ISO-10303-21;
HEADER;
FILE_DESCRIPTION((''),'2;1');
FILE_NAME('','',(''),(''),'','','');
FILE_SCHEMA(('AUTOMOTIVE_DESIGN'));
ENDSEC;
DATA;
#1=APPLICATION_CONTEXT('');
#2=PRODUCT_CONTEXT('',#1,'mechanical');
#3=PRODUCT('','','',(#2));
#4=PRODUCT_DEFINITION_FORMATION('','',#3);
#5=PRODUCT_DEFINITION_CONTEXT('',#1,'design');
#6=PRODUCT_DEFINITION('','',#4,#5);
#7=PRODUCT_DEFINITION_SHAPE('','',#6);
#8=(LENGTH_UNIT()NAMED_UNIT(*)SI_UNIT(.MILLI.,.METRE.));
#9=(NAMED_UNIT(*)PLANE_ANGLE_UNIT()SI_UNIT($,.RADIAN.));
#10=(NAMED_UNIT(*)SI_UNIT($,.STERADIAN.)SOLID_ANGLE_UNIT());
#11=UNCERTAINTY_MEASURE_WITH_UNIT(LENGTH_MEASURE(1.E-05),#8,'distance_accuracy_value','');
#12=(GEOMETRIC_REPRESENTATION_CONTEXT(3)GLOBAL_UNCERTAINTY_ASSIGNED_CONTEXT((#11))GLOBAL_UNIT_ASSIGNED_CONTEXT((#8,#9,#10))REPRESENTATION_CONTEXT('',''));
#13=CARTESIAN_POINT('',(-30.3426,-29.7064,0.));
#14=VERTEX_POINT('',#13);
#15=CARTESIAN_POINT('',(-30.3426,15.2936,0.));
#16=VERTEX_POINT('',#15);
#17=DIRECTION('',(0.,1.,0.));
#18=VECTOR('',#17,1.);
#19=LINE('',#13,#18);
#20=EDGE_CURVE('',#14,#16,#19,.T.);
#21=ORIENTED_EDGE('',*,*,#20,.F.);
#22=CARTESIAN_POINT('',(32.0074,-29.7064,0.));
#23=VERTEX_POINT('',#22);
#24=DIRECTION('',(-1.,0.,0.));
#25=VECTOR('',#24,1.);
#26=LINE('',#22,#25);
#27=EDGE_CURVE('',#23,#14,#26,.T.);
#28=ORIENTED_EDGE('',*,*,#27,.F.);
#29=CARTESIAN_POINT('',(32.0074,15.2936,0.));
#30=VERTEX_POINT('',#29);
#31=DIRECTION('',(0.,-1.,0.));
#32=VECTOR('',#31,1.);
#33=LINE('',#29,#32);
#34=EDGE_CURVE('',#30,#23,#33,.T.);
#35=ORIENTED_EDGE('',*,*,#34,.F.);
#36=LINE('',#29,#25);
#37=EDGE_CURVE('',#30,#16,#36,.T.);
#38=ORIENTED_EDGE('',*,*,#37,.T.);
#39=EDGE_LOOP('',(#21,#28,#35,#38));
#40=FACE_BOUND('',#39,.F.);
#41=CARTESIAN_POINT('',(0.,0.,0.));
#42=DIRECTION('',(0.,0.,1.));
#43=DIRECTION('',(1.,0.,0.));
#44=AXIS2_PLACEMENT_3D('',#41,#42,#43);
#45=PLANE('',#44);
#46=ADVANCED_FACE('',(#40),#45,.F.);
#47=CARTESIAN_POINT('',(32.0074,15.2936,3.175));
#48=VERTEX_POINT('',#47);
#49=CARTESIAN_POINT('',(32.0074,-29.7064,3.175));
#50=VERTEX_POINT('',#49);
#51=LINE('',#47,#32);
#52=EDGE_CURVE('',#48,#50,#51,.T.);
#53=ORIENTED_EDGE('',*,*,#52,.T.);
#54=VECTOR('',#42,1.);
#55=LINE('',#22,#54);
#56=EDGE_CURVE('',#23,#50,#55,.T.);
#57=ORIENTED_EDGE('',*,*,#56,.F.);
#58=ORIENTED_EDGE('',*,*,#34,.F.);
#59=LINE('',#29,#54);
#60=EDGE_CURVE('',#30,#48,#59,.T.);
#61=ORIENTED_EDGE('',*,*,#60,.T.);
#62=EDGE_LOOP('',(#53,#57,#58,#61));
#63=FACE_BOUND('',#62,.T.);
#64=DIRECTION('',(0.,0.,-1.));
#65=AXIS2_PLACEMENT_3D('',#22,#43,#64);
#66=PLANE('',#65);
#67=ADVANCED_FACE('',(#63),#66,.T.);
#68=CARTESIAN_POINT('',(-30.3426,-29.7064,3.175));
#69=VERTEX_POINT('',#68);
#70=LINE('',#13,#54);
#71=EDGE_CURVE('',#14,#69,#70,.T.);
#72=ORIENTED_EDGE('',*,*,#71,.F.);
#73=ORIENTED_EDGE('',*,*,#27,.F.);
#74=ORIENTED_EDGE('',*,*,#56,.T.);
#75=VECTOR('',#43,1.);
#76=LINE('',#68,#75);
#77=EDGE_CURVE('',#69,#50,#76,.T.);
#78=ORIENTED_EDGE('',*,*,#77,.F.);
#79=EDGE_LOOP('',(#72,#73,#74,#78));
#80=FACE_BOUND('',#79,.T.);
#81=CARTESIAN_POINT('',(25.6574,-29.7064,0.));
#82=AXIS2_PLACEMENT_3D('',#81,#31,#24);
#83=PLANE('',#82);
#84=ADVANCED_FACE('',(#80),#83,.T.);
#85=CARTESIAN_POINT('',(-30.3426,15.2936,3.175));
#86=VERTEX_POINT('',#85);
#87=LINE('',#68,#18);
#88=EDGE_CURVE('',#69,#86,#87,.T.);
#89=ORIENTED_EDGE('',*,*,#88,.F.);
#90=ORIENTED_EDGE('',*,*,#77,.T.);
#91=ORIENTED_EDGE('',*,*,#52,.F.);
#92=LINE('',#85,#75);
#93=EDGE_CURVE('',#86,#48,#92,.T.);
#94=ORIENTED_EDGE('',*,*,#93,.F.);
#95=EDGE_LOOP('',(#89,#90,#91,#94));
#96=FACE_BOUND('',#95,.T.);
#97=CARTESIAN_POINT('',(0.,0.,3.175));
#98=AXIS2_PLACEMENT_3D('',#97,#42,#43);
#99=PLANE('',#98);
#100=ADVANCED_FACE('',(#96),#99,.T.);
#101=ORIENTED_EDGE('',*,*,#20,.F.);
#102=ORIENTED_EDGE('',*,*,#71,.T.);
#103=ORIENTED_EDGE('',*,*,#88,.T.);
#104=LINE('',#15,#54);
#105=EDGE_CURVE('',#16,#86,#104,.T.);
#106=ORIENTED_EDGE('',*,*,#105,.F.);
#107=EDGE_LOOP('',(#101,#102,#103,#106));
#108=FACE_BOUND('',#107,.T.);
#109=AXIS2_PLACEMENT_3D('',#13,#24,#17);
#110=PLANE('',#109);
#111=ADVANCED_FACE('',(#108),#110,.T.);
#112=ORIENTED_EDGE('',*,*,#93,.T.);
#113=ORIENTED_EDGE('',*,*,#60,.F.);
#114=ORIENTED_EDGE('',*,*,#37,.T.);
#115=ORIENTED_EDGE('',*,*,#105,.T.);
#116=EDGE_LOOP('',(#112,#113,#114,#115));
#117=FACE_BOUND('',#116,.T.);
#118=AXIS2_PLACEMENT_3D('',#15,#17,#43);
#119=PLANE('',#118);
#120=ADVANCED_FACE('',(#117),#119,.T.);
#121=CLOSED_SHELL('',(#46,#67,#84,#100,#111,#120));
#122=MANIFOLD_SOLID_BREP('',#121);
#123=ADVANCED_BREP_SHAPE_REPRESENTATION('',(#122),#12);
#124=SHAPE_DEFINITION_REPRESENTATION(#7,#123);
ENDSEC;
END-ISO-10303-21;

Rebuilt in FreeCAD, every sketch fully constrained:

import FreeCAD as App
import Part
import Sketcher
from FreeCAD import Vector
Q = App.Units.Quantity

doc = App.newDocument("Part")
params = doc.addObject("Spreadsheet::Sheet", "Params")
for row, (alias, value) in enumerate([
    ("sketch1_width", "56 mm"),
    ("sketch1_height", "45 mm"),
    ("pad1_length", "3.175 mm"),
    ("sketch2_width", "45 mm"),
    ("pad2_length", "6.35 mm"),
], start=1):
    params.set(f"A{row}", alias)
    params.set(f"B{row}", "=" + value)
    params.setAlias(f"B{row}", alias)

body = doc.addObject("PartDesign::Body", "Body")

# Sketch on XY plane
sketch1 = doc.addObject("Sketcher::SketchObject", "Sketch")
body.addObject(sketch1)
sketch1.AttachmentSupport = (doc.XY_Plane, [""])
sketch1.MapMode = "FlatFace"
sketch1.addGeometry(Part.LineSegment(Vector(25.6574, 15.2936, 0), Vector(-30.3426, 15.2936, 0)), False)
sketch1.addGeometry(Part.LineSegment(Vector(-30.3426, 15.2936, 0), Vector(-30.3426, -29.7064, 0)), False)
sketch1.addGeometry(Part.LineSegment(Vector(-30.3426, -29.7064, 0), Vector(25.6574, -29.7064, 0)), False)
sketch1.addGeometry(Part.LineSegment(Vector(25.6574, -29.7064, 0), Vector(25.6574, 15.2936, 0)), False)
sketch1.addConstraint(Sketcher.Constraint("Coincident", 0, 2, 1, 1))
sketch1.addConstraint(Sketcher.Constraint("Coincident", 1, 2, 2, 1))
sketch1.addConstraint(Sketcher.Constraint("Coincident", 2, 2, 3, 1))
sketch1.addConstraint(Sketcher.Constraint("Coincident", 3, 2, 0, 1))
sketch1.addConstraint(Sketcher.Constraint("Horizontal", 0))
sketch1.addConstraint(Sketcher.Constraint("Vertical", 1))
sketch1.addConstraint(Sketcher.Constraint("Horizontal", 2))
sketch1.addConstraint(Sketcher.Constraint("Vertical", 3))
sketch1.addConstraint(Sketcher.Constraint("DistanceX", 0, 2, 0, 1, Q("56 mm")))
sketch1.addConstraint(Sketcher.Constraint("DistanceY", 1, 2, 1, 1, Q("45 mm")))
sketch1.addConstraint(Sketcher.Constraint("DistanceX", 0, 2, -1, 1, Q("30.3426 mm")))
sketch1.addConstraint(Sketcher.Constraint("DistanceY", -1, 1, 0, 2, Q("15.2936 mm")))
sketch1.setExpression("Constraints[8]", "Params.sketch1_width")
sketch1.setExpression("Constraints[9]", "Params.sketch1_height")
pad1 = doc.addObject("PartDesign::Pad", "Pad")
body.addObject(pad1)
pad1.Profile = sketch1
pad1.setExpression("Length", "Params.pad1_length")

# Sketch on YZ plane
sketch2 = doc.addObject("Sketcher::SketchObject", "Sketch001")
body.addObject(sketch2)
sketch2.AttachmentSupport = (doc.YZ_Plane, [""])
sketch2.MapMode = "FlatFace"
sketch2.AttachmentOffset = App.Placement(Vector(0, 0, 25.6574), App.Rotation())
sketch2.addGeometry(Part.LineSegment(Vector(15.2936, 0, 0), Vector(15.2936, 3.175, 0)), False)
sketch2.addGeometry(Part.LineSegment(Vector(15.2936, 3.175, 0), Vector(-29.7064, 3.175, 0)), False)
sketch2.addGeometry(Part.LineSegment(Vector(-29.7064, 3.175, 0), Vector(-29.7064, 0, 0)), False)
sketch2.addGeometry(Part.LineSegment(Vector(-29.7064, 0, 0), Vector(15.2936, 0, 0)), False)
sketch2.addConstraint(Sketcher.Constraint("Coincident", 0, 2, 1, 1))
sketch2.addConstraint(Sketcher.Constraint("Coincident", 1, 2, 2, 1))
sketch2.addConstraint(Sketcher.Constraint("Coincident", 2, 2, 3, 1))
sketch2.addConstraint(Sketcher.Constraint("Coincident", 3, 2, 0, 1))
sketch2.addConstraint(Sketcher.Constraint("Vertical", 0))
sketch2.addConstraint(Sketcher.Constraint("Horizontal", 1))
sketch2.addConstraint(Sketcher.Constraint("Vertical", 2))
sketch2.addConstraint(Sketcher.Constraint("Horizontal", 3))
sketch2.addConstraint(Sketcher.Constraint("PointOnObject", 2, 2, -1))
sketch2.addConstraint(Sketcher.Constraint("DistanceX", 1, 2, 1, 1, Q("45 mm")))
sketch2.addConstraint(Sketcher.Constraint("DistanceY", 0, 1, 0, 2, Q("3.175 mm")))
sketch2.addConstraint(Sketcher.Constraint("DistanceX", -1, 1, 0, 2, Q("15.2936 mm")))
sketch2.setExpression("Constraints[9]", "Params.sketch2_width")
pad2 = doc.addObject("PartDesign::Pad", "Pad001")
body.addObject(pad2)
pad2.Profile = sketch2
pad2.setExpression("Length", "Params.pad2_length")

doc.recompute()
